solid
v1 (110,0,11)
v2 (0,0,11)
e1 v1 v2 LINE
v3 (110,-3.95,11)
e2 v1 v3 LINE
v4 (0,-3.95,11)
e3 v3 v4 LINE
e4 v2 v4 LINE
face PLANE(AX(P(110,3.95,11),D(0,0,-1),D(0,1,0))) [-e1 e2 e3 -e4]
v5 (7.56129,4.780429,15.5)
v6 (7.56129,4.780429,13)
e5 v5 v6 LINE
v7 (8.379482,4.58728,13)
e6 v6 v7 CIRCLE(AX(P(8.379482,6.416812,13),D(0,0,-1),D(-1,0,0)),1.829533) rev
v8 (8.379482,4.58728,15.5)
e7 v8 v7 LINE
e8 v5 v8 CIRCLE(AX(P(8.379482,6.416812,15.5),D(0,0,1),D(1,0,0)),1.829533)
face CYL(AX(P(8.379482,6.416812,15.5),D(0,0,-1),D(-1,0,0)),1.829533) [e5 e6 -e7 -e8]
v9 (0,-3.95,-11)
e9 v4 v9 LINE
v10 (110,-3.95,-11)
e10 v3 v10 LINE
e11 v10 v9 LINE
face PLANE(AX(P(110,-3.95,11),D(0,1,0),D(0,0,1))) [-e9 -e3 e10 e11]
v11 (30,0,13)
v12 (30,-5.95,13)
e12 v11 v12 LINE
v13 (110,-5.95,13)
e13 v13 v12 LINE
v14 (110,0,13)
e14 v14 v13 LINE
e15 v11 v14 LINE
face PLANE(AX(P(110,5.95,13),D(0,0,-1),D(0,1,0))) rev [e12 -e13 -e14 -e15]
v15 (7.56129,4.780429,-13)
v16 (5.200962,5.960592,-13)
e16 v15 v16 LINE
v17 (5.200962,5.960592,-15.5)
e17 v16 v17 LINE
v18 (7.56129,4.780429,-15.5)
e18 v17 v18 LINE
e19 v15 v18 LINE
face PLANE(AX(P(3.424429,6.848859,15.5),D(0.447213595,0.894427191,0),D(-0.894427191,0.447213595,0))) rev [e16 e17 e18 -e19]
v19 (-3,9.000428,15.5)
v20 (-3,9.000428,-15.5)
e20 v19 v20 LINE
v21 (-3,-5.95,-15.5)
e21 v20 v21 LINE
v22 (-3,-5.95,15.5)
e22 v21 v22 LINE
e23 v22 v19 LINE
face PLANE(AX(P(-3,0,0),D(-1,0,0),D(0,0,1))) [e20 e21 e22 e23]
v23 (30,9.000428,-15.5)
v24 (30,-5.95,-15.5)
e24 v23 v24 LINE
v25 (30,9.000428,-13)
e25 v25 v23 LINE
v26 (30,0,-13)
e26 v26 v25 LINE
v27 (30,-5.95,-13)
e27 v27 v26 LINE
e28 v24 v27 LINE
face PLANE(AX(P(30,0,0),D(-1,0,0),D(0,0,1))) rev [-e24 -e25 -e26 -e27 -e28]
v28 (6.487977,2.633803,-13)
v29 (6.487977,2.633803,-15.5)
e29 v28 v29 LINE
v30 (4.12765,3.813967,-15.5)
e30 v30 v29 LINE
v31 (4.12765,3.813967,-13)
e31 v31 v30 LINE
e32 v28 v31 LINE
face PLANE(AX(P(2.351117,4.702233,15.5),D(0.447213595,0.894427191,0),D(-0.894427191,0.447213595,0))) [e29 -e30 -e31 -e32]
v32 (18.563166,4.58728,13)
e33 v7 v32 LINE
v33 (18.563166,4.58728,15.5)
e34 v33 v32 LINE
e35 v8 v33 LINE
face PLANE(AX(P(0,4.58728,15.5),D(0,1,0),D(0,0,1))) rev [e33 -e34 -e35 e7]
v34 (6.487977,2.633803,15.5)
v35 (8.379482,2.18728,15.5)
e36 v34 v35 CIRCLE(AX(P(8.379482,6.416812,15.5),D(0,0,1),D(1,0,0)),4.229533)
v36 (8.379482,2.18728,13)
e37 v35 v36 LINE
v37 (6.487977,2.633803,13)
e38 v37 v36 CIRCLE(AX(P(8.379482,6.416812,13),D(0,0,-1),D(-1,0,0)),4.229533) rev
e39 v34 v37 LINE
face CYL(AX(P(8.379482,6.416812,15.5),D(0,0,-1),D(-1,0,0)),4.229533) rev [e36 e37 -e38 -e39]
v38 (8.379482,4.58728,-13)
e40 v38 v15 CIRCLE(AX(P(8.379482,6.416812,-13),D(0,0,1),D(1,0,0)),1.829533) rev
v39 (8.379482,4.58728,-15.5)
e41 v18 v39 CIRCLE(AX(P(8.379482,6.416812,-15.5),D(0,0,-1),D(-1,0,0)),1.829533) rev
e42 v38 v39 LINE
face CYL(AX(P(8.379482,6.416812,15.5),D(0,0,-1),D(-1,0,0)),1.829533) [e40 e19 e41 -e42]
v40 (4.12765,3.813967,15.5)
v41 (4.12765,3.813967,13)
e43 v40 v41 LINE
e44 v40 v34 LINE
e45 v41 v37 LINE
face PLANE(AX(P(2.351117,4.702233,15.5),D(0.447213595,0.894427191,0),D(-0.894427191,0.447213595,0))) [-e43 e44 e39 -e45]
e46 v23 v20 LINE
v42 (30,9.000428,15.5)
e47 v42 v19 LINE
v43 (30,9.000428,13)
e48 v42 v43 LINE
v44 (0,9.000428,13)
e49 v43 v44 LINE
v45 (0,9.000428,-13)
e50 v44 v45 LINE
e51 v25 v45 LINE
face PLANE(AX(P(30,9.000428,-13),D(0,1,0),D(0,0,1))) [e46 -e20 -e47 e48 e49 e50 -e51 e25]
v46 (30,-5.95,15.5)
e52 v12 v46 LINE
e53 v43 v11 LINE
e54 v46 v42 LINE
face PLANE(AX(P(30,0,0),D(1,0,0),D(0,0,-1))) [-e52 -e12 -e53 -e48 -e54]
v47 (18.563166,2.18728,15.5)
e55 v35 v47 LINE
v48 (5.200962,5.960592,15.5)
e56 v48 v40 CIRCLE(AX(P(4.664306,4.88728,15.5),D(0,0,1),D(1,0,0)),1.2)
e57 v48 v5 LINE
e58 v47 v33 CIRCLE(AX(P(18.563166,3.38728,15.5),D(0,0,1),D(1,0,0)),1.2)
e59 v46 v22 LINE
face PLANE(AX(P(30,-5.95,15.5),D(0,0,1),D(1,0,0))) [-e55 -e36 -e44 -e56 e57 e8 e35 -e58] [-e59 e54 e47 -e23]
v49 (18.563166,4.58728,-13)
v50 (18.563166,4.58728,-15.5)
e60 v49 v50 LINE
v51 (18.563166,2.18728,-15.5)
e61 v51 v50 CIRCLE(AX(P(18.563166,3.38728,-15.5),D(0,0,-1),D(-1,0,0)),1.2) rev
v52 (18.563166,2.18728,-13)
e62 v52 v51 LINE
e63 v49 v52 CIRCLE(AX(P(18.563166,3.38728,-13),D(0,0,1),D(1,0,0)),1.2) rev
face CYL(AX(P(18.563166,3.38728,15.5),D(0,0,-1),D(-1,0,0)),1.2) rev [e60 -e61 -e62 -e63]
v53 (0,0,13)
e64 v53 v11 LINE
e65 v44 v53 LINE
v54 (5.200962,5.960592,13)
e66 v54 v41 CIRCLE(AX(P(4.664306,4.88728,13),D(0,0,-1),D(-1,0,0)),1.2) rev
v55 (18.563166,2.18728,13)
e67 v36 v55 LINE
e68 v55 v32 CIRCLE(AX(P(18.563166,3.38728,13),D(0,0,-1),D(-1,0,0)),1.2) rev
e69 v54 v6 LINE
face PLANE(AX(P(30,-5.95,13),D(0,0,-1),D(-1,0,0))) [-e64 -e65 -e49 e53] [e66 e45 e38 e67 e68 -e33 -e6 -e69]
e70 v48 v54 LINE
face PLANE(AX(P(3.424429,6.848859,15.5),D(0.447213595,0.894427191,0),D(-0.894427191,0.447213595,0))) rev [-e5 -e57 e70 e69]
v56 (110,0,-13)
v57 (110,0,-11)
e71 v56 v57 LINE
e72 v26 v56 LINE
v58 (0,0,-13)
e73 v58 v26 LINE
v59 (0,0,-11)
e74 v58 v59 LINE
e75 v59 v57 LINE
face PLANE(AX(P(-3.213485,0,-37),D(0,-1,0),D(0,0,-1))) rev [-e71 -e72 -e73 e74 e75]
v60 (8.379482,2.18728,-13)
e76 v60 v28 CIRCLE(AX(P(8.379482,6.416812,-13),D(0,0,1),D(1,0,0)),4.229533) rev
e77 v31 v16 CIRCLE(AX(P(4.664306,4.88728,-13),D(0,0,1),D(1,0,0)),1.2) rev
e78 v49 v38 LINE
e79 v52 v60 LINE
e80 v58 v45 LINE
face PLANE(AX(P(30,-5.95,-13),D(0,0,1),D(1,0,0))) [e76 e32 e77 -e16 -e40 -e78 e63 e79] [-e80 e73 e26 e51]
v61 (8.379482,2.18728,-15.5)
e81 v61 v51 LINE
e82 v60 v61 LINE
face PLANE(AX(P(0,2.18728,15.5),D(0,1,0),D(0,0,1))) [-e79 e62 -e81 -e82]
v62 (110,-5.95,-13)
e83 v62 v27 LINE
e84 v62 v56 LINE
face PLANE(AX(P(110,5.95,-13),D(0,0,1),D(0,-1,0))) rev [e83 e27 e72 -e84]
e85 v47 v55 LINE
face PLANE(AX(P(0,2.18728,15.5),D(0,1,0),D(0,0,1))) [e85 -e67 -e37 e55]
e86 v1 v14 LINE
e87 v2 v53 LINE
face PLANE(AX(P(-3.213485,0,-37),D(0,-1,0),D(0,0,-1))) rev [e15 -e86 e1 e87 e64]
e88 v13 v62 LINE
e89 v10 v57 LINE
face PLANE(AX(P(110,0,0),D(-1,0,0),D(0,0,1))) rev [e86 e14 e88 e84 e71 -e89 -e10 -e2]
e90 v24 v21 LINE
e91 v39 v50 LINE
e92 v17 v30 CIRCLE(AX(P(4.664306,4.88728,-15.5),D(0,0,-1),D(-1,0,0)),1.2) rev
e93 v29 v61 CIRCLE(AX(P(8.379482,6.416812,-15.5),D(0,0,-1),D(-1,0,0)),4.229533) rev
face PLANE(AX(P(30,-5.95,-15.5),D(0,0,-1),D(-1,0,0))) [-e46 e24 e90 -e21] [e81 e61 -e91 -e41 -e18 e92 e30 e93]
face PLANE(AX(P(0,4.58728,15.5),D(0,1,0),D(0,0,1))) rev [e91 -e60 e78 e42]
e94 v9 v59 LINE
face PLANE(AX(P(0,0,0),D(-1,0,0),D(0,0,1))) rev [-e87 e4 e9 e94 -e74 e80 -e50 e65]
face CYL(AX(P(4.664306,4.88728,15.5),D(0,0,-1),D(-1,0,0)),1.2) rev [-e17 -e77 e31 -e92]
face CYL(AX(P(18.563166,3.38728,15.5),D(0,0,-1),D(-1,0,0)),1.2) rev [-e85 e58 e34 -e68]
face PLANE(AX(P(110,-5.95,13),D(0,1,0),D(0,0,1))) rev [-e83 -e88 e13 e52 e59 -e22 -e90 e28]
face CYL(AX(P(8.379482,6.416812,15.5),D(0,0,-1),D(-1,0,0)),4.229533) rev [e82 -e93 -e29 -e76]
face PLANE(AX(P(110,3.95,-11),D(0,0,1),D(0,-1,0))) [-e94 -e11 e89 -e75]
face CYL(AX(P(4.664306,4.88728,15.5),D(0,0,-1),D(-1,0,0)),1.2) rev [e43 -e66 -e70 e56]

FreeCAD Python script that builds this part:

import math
import FreeCAD as App
import Part
import Sketcher
from FreeCAD import Vector
Q = App.Units.Quantity

doc = App.newDocument("Part")
params = doc.addObject("Spreadsheet::Sheet", "Params")
for row, (alias, value) in enumerate([
    ("sketch1_height", "26 mm"),
    ("sketch1_height2", "22 mm"),
    ("sketch1_width", "11.9 mm"),
    ("sketch1_width2", "7.9 mm"),
    ("pad1_length", "110 mm"),
    ("pocket1_length", "50 mm"),
    ("sketch3_height", "2.5 mm"),
    ("pad2_length", "30 mm"),
    ("sketch4_height", "31 mm"),
    ("pad3_length", "3 mm"),
    ("sketch5_radius", "1.2 mm"),
], start=1):
    params.set(f"A{row}", alias)
    params.set(f"B{row}", "=" + value)
    params.setAlias(f"B{row}", alias)

body = doc.addObject("PartDesign::Body", "Body")

sketch1 = body.newObject("Sketcher::SketchObject", "Sketch")
sketch1.AttachmentSupport = (doc.getObject("YZ_Plane"), [""])
sketch1.MapMode = "FlatFace"
sketch1.addGeometry(Part.LineSegment(Vector(6, 13, 0), Vector(-6, 13, 0)), False)
sketch1.addGeometry(Part.LineSegment(Vector(-6, 13, 0), Vector(-6, -13, 0)), False)
sketch1.addGeometry(Part.LineSegment(Vector(-6, -13, 0), Vector(6, -13, 0)), False)
sketch1.addGeometry(Part.LineSegment(Vector(6, -13, 0), Vector(6, 13, 0)), False)
sketch1.addGeometry(Part.LineSegment(Vector(-4, -11, 0), Vector(-4, 11, 0)), False)
sketch1.addGeometry(Part.LineSegment(Vector(-4, 11, 0), Vector(4, 11, 0)), False)
sketch1.addGeometry(Part.LineSegment(Vector(4, 11, 0), Vector(4, -11, 0)), False)
sketch1.addGeometry(Part.LineSegment(Vector(4, -11, 0), Vector(-4, -11, 0)), False)
sketch1.addConstraint(Sketcher.Constraint("Coincident", 0, 2, 1, 1))
sketch1.addConstraint(Sketcher.Constraint("Coincident", 1, 2, 2, 1))
sketch1.addConstraint(Sketcher.Constraint("Coincident", 2, 2, 3, 1))
sketch1.addConstraint(Sketcher.Constraint("Coincident", 3, 2, 0, 1))
sketch1.addConstraint(Sketcher.Constraint("Coincident", 4, 2, 5, 1))
sketch1.addConstraint(Sketcher.Constraint("Coincident", 5, 2, 6, 1))
sketch1.addConstraint(Sketcher.Constraint("Coincident", 6, 2, 7, 1))
sketch1.addConstraint(Sketcher.Constraint("Coincident", 7, 2, 4, 1))
sketch1.addConstraint(Sketcher.Constraint("Horizontal", 0))
sketch1.addConstraint(Sketcher.Constraint("Vertical", 1))
sketch1.addConstraint(Sketcher.Constraint("Horizontal", 2))
sketch1.addConstraint(Sketcher.Constraint("Vertical", 3))
sketch1.addConstraint(Sketcher.Constraint("Vertical", 4))
sketch1.addConstraint(Sketcher.Constraint("Horizontal", 5))
sketch1.addConstraint(Sketcher.Constraint("Vertical", 6))
sketch1.addConstraint(Sketcher.Constraint("Horizontal", 7))
sketch1.addConstraint(Sketcher.Constraint("Symmetric", 0, 2, 2, 2, -1, 1))
sketch1.addConstraint(Sketcher.Constraint("Symmetric", 4, 2, 6, 2, -1, 1))
sketch1.addConstraint(Sketcher.Constraint("DistanceY", 1, 2, 1, 1, Q("26 mm")))
sketch1.addConstraint(Sketcher.Constraint("DistanceY", 4, 1, 4, 2, Q("22 mm")))
sketch1.addConstraint(Sketcher.Constraint("DistanceX", 0, 2, 0, 1, Q("11.9 mm")))
sketch1.addConstraint(Sketcher.Constraint("DistanceX", 5, 1, 5, 2, Q("7.9 mm")))
sketch1.setExpression("Constraints[18]", "Params.sketch1_height")
sketch1.setExpression("Constraints[19]", "Params.sketch1_height2")
sketch1.setExpression("Constraints[20]", "Params.sketch1_width")
sketch1.setExpression("Constraints[21]", "Params.sketch1_width2")
pad1 = body.newObject("PartDesign::Pad", "Pad")
pad1.Profile = sketch1
pad1.setExpression("Length", "Params.pad1_length")

sketch2 = body.newObject("Sketcher::SketchObject", "Sketch001")
sketch2.AttachmentSupport = (doc.getObject("XY_Plane"), [""])
sketch2.MapMode = "FlatFace"
sketch2.AttachmentOffset = App.Placement(Vector(0, 0, 13), App.Rotation())
sketch2.addGeometry(Part.LineSegment(Vector(-3, 9, 0), Vector(-3, 0, 0)), False)
sketch2.addGeometry(Part.LineSegment(Vector(-3, 0, 0), Vector(148, 0, 0)), False)
sketch2.addGeometry(Part.LineSegment(Vector(148, 0, 0), Vector(148, 9, 0)), False)
sketch2.addGeometry(Part.LineSegment(Vector(148, 9, 0), Vector(-3, 9, 0)), False)
sketch2.addConstraint(Sketcher.Constraint("Coincident", 0, 2, 1, 1))
sketch2.addConstraint(Sketcher.Constraint("Coincident", 1, 2, 2, 1))
sketch2.addConstraint(Sketcher.Constraint("Coincident", 2, 2, 3, 1))
sketch2.addConstraint(Sketcher.Constraint("Coincident", 3, 2, 0, 1))
sketch2.addConstraint(Sketcher.Constraint("Vertical", 0))
sketch2.addConstraint(Sketcher.Constraint("Horizontal", 1))
sketch2.addConstraint(Sketcher.Constraint("Vertical", 2))
sketch2.addConstraint(Sketcher.Constraint("Horizontal", 3))
sketch2.addConstraint(Sketcher.Constraint("PointOnObject", 0, 2, -1))
sketch2.addConstraint(Sketcher.Constraint("DistanceY", 0, 2, 0, 1, Q("8.521609 mm")))
sketch2.addConstraint(Sketcher.Constraint("DistanceX", 1, 1, 1, 2, Q("151.071145 mm")))
sketch2.addConstraint(Sketcher.Constraint("DistanceX", -1, 1, 1, 2, Q("147.85766 mm")))
pocket1 = body.newObject("PartDesign::Pocket", "Pocket")
pocket1.Profile = sketch2
pocket1.setExpression("Length", "Params.pocket1_length")

sketch3 = body.newObject("Sketcher::SketchObject", "Sketch002")
sketch3.AttachmentSupport = (doc.getObject("YZ_Plane"), [""])
sketch3.MapMode = "FlatFace"
sketch3.addGeometry(Part.LineSegment(Vector(9, 13, 0), Vector(-6, 13, 0)), False)
sketch3.addGeometry(Part.LineSegment(Vector(-6, 13, 0), Vector(-6, 15.5, 0)), False)
sketch3.addGeometry(Part.LineSegment(Vector(-6, 15.5, 0), Vector(9, 15.5, 0)), False)
sketch3.addGeometry(Part.LineSegment(Vector(9, 15.5, 0), Vector(9, 13, 0)), False)
sketch3.addGeometry(Part.LineSegment(Vector(9, -15.5, 0), Vector(-6, -15.5, 0)), False)
sketch3.addGeometry(Part.LineSegment(Vector(-6, -15.5, 0), Vector(-6, -13, 0)), False)
sketch3.addGeometry(Part.LineSegment(Vector(-6, -13, 0), Vector(9, -13, 0)), False)
sketch3.addGeometry(Part.LineSegment(Vector(9, -13, 0), Vector(9, -15.5, 0)), False)
sketch3.addConstraint(Sketcher.Constraint("Coincident", 0, 2, 1, 1))
sketch3.addConstraint(Sketcher.Constraint("Coincident", 1, 2, 2, 1))
sketch3.addConstraint(Sketcher.Constraint("Coincident", 2, 2, 3, 1))
sketch3.addConstraint(Sketcher.Constraint("Coincident", 3, 2, 0, 1))
sketch3.addConstraint(Sketcher.Constraint("Coincident", 4, 2, 5, 1))
sketch3.addConstraint(Sketcher.Constraint("Coincident", 5, 2, 6, 1))
sketch3.addConstraint(Sketcher.Constraint("Coincident", 6, 2, 7, 1))
sketch3.addConstraint(Sketcher.Constraint("Coincident", 7, 2, 4, 1))
sketch3.addConstraint(Sketcher.Constraint("Horizontal", 0))
sketch3.addConstraint(Sketcher.Constraint("Vertical", 1))
sketch3.addConstraint(Sketcher.Constraint("Horizontal", 2))
sketch3.addConstraint(Sketcher.Constraint("Vertical", 3))
sketch3.addConstraint(Sketcher.Constraint("Horizontal", 4))
sketch3.addConstraint(Sketcher.Constraint("Vertical", 5))
sketch3.addConstraint(Sketcher.Constraint("Horizontal", 6))
sketch3.addConstraint(Sketcher.Constraint("Vertical", 7))
sketch3.addConstraint(Sketcher.Constraint("Symmetric", 1, 2, 4, 2, -1))
sketch3.addConstraint(Sketcher.Constraint("Symmetric", 3, 2, 6, 2, -1))
sketch3.addConstraint(Sketcher.Constraint("DistanceY", 1, 1, 1, 2, Q("2.5 mm")))
sketch3.addConstraint(Sketcher.Constraint("DistanceY", -1, 1, 0, 2, Q("13 mm")))
sketch3.addConstraint(Sketcher.Constraint("DistanceX", 0, 2, -1, 1, Q("5.95 mm")))
sketch3.addConstraint(Sketcher.Constraint("DistanceX", 0, 2, 0, 1, Q("14.950428 mm")))
sketch3.setExpression("Constraints[18]", "Params.sketch3_height")
pad2 = body.newObject("PartDesign::Pad", "Pad001")
pad2.Profile = sketch3
pad2.setExpression("Length", "Params.pad2_length")

sketch4 = body.newObject("Sketcher::SketchObject", "Sketch003")
sketch4.AttachmentSupport = (doc.getObject("YZ_Plane"), [""])
sketch4.MapMode = "FlatFace"
sketch4.addGeometry(Part.LineSegment(Vector(9, -16, 0), Vector(-6, -16, 0)), False)
sketch4.addGeometry(Part.LineSegment(Vector(-6, -16, 0), Vector(-6, 16, 0)), False)
sketch4.addGeometry(Part.LineSegment(Vector(-6, 16, 0), Vector(9, 16, 0)), False)
sketch4.addGeometry(Part.LineSegment(Vector(9, 16, 0), Vector(9, -16, 0)), False)
sketch4.addConstraint(Sketcher.Constraint("Coincident", 0, 2, 1, 1))
sketch4.addConstraint(Sketcher.Constraint("Coincident", 1, 2, 2, 1))
sketch4.addConstraint(Sketcher.Constraint("Coincident", 2, 2, 3, 1))
sketch4.addConstraint(Sketcher.Constraint("Coincident", 3, 2, 0, 1))
sketch4.addConstraint(Sketcher.Constraint("Horizontal", 0))
sketch4.addConstraint(Sketcher.Constraint("Vertical", 1))
sketch4.addConstraint(Sketcher.Constraint("Horizontal", 2))
sketch4.addConstraint(Sketcher.Constraint("Vertical", 3))
sketch4.addConstraint(Sketcher.Constraint("DistanceY", 1, 1, 1, 2, Q("31 mm")))
sketch4.addConstraint(Sketcher.Constraint("DistanceY", 0, 2, -1, 1, Q("15.5 mm")))
sketch4.addConstraint(Sketcher.Constraint("DistanceX", 0, 2, -1, 1, Q("5.95 mm")))
sketch4.addConstraint(Sketcher.Constraint("DistanceX", 0, 2, 0, 1, Q("14.950428 mm")))
sketch4.setExpression("Constraints[8]", "Params.sketch4_height")
pad3 = body.newObject("PartDesign::Pad", "Pad002")
pad3.Profile = sketch4
pad3.setExpression("Length", "Params.pad3_length")
pad3.Reversed = True

sketch5 = body.newObject("Sketcher::SketchObject", "Sketch004")
sketch5.AttachmentSupport = (doc.getObject("XY_Plane"), [""])
sketch5.MapMode = "FlatFace"
sketch5.AttachmentOffset = App.Placement(Vector(0, 0, -13), App.Rotation())
sketch5.addGeometry(Part.LineSegment(Vector(18.56, 4.59, 0), Vector(8.38, 4.59, 0)), False)
sketch5.addGeometry(Part.ArcOfCircle(Part.Circle(Vector(8.38, 6.42, 0), Vector(0, 0, 1), 1.83), math.radians(-117), math.radians(-90)), False)
sketch5.addGeometry(Part.LineSegment(Vector(7.56, 4.78, 0), Vector(5.2, 5.96, 0)), False)
sketch5.addGeometry(Part.ArcOfCircle(Part.Circle(Vector(4.66, 4.89, 0), Vector(0, 0, 1), 1.2), math.radians(63), math.radians(114)), False)
sketch5.addGeometry(Part.ArcOfCircle(Part.Circle(Vector(4.66, 4.89, 0), Vector(0, 0, 1), 1.2), math.radians(114), math.radians(243)), False)
sketch5.addGeometry(Part.LineSegment(Vector(4.13, 3.81, 0), Vector(6.49, 2.63, 0)), False)
sketch5.addGeometry(Part.ArcOfCircle(Part.Circle(Vector(8.38, 6.42, 0), Vector(0, 0, 1), 4.23), math.radians(-116.57), math.radians(-110.22)), False)
sketch5.addGeometry(Part.ArcOfCircle(Part.Circle(Vector(8.38, 6.42, 0), Vector(0, 0, 1), 4.23), math.radians(-110.22), math.radians(-96.34)), False)
sketch5.addGeometry(Part.ArcOfCircle(Part.Circle(Vector(8.38, 6.42, 0), Vector(0, 0, 1), 4.23), math.radians(-96.34), math.radians(-90)), False)
sketch5.addGeometry(Part.LineSegment(Vector(8.38, 2.19, 0), Vector(18.56, 2.19, 0)), False)
sketch5.addGeometry(Part.ArcOfCircle(Part.Circle(Vector(18.56, 3.39, 0), Vector(0, 0, 1), 1.2), math.radians(-90), math.radians(90)), False)
sketch5.addConstraint(Sketcher.Constraint("Tangent", 0, 2, 1, 2))
sketch5.addConstraint(Sketcher.Constraint("Tangent", 1, 1, 2, 1))
sketch5.addConstraint(Sketcher.Constraint("Tangent", 2, 2, 3, 1))
sketch5.addConstraint(Sketcher.Constraint("Tangent", 3, 2, 4, 1))
sketch5.addConstraint(Sketcher.Constraint("Tangent", 4, 2, 5, 1))
sketch5.addConstraint(Sketcher.Constraint("Tangent", 5, 2, 6, 1))
sketch5.addConstraint(Sketcher.Constraint("Tangent", 6, 2, 7, 1))
sketch5.addConstraint(Sketcher.Constraint("Tangent", 7, 2, 8, 1))
sketch5.addConstraint(Sketcher.Constraint("Tangent", 8, 2, 9, 1))
sketch5.addConstraint(Sketcher.Constraint("Tangent", 9, 2, 10, 1))
sketch5.addConstraint(Sketcher.Constraint("Tangent", 10, 2, 0, 1))
sketch5.addConstraint(Sketcher.Constraint("Horizontal", 0))
sketch5.addConstraint(Sketcher.Constraint("Horizontal", 9))
sketch5.addConstraint(Sketcher.Constraint("Coincident", 6, 3, 1, 3))
sketch5.addConstraint(Sketcher.Constraint("Coincident", 8, 3, 1, 3))
sketch5.addConstraint(Sketcher.Constraint("Equal", 3, 4))
sketch5.addConstraint(Sketcher.Constraint("Equal", 4, 10))
sketch5.addConstraint(Sketcher.Constraint("Radius", 3, Q("1.2 mm")))
sketch5.addConstraint(Sketcher.Constraint("DistanceY", 10, 3, 3, 3, Q("1.5 mm")))
sketch5.addConstraint(Sketcher.Constraint("Radius", 1, Q("1.829533 mm")))
sketch5.addConstraint(Sketcher.Constraint("DistanceX", 6, 2, 0, 2, Q("1.462 mm")))
sketch5.addConstraint(Sketcher.Constraint("DistanceY", 7, 2, 4, 2, Q("1.600798 mm")))
sketch5.addConstraint(Sketcher.Constraint("DistanceX", 0, 2, 0, 1, Q("10.183685 mm")))
sketch5.addConstraint(Sketcher.Constraint("DistanceX", -1, 1, 1, 3, Q("8.379482 mm")))
sketch5.addConstraint(Sketcher.Constraint("DistanceY", -1, 1, 3, 3, Q("4.88728 mm")))
sketch5.addConstraint(Sketcher.Constraint("DistanceX", -1, 1, 1, 1, Q("7.56129 mm")))
sketch5.addConstraint(Sketcher.Constraint("DistanceX", 3, 2, 3, 3, Q("0.491928 mm")))
sketch5.setExpression("Constraints[17]", "Params.sketch5_radius")
pocket2 = body.newObject("PartDesign::Pocket", "Pocket001")
pocket2.Profile = sketch5
pocket2.Type = "ThroughAll"
pocket2.Midplane = True

doc.recompute()
